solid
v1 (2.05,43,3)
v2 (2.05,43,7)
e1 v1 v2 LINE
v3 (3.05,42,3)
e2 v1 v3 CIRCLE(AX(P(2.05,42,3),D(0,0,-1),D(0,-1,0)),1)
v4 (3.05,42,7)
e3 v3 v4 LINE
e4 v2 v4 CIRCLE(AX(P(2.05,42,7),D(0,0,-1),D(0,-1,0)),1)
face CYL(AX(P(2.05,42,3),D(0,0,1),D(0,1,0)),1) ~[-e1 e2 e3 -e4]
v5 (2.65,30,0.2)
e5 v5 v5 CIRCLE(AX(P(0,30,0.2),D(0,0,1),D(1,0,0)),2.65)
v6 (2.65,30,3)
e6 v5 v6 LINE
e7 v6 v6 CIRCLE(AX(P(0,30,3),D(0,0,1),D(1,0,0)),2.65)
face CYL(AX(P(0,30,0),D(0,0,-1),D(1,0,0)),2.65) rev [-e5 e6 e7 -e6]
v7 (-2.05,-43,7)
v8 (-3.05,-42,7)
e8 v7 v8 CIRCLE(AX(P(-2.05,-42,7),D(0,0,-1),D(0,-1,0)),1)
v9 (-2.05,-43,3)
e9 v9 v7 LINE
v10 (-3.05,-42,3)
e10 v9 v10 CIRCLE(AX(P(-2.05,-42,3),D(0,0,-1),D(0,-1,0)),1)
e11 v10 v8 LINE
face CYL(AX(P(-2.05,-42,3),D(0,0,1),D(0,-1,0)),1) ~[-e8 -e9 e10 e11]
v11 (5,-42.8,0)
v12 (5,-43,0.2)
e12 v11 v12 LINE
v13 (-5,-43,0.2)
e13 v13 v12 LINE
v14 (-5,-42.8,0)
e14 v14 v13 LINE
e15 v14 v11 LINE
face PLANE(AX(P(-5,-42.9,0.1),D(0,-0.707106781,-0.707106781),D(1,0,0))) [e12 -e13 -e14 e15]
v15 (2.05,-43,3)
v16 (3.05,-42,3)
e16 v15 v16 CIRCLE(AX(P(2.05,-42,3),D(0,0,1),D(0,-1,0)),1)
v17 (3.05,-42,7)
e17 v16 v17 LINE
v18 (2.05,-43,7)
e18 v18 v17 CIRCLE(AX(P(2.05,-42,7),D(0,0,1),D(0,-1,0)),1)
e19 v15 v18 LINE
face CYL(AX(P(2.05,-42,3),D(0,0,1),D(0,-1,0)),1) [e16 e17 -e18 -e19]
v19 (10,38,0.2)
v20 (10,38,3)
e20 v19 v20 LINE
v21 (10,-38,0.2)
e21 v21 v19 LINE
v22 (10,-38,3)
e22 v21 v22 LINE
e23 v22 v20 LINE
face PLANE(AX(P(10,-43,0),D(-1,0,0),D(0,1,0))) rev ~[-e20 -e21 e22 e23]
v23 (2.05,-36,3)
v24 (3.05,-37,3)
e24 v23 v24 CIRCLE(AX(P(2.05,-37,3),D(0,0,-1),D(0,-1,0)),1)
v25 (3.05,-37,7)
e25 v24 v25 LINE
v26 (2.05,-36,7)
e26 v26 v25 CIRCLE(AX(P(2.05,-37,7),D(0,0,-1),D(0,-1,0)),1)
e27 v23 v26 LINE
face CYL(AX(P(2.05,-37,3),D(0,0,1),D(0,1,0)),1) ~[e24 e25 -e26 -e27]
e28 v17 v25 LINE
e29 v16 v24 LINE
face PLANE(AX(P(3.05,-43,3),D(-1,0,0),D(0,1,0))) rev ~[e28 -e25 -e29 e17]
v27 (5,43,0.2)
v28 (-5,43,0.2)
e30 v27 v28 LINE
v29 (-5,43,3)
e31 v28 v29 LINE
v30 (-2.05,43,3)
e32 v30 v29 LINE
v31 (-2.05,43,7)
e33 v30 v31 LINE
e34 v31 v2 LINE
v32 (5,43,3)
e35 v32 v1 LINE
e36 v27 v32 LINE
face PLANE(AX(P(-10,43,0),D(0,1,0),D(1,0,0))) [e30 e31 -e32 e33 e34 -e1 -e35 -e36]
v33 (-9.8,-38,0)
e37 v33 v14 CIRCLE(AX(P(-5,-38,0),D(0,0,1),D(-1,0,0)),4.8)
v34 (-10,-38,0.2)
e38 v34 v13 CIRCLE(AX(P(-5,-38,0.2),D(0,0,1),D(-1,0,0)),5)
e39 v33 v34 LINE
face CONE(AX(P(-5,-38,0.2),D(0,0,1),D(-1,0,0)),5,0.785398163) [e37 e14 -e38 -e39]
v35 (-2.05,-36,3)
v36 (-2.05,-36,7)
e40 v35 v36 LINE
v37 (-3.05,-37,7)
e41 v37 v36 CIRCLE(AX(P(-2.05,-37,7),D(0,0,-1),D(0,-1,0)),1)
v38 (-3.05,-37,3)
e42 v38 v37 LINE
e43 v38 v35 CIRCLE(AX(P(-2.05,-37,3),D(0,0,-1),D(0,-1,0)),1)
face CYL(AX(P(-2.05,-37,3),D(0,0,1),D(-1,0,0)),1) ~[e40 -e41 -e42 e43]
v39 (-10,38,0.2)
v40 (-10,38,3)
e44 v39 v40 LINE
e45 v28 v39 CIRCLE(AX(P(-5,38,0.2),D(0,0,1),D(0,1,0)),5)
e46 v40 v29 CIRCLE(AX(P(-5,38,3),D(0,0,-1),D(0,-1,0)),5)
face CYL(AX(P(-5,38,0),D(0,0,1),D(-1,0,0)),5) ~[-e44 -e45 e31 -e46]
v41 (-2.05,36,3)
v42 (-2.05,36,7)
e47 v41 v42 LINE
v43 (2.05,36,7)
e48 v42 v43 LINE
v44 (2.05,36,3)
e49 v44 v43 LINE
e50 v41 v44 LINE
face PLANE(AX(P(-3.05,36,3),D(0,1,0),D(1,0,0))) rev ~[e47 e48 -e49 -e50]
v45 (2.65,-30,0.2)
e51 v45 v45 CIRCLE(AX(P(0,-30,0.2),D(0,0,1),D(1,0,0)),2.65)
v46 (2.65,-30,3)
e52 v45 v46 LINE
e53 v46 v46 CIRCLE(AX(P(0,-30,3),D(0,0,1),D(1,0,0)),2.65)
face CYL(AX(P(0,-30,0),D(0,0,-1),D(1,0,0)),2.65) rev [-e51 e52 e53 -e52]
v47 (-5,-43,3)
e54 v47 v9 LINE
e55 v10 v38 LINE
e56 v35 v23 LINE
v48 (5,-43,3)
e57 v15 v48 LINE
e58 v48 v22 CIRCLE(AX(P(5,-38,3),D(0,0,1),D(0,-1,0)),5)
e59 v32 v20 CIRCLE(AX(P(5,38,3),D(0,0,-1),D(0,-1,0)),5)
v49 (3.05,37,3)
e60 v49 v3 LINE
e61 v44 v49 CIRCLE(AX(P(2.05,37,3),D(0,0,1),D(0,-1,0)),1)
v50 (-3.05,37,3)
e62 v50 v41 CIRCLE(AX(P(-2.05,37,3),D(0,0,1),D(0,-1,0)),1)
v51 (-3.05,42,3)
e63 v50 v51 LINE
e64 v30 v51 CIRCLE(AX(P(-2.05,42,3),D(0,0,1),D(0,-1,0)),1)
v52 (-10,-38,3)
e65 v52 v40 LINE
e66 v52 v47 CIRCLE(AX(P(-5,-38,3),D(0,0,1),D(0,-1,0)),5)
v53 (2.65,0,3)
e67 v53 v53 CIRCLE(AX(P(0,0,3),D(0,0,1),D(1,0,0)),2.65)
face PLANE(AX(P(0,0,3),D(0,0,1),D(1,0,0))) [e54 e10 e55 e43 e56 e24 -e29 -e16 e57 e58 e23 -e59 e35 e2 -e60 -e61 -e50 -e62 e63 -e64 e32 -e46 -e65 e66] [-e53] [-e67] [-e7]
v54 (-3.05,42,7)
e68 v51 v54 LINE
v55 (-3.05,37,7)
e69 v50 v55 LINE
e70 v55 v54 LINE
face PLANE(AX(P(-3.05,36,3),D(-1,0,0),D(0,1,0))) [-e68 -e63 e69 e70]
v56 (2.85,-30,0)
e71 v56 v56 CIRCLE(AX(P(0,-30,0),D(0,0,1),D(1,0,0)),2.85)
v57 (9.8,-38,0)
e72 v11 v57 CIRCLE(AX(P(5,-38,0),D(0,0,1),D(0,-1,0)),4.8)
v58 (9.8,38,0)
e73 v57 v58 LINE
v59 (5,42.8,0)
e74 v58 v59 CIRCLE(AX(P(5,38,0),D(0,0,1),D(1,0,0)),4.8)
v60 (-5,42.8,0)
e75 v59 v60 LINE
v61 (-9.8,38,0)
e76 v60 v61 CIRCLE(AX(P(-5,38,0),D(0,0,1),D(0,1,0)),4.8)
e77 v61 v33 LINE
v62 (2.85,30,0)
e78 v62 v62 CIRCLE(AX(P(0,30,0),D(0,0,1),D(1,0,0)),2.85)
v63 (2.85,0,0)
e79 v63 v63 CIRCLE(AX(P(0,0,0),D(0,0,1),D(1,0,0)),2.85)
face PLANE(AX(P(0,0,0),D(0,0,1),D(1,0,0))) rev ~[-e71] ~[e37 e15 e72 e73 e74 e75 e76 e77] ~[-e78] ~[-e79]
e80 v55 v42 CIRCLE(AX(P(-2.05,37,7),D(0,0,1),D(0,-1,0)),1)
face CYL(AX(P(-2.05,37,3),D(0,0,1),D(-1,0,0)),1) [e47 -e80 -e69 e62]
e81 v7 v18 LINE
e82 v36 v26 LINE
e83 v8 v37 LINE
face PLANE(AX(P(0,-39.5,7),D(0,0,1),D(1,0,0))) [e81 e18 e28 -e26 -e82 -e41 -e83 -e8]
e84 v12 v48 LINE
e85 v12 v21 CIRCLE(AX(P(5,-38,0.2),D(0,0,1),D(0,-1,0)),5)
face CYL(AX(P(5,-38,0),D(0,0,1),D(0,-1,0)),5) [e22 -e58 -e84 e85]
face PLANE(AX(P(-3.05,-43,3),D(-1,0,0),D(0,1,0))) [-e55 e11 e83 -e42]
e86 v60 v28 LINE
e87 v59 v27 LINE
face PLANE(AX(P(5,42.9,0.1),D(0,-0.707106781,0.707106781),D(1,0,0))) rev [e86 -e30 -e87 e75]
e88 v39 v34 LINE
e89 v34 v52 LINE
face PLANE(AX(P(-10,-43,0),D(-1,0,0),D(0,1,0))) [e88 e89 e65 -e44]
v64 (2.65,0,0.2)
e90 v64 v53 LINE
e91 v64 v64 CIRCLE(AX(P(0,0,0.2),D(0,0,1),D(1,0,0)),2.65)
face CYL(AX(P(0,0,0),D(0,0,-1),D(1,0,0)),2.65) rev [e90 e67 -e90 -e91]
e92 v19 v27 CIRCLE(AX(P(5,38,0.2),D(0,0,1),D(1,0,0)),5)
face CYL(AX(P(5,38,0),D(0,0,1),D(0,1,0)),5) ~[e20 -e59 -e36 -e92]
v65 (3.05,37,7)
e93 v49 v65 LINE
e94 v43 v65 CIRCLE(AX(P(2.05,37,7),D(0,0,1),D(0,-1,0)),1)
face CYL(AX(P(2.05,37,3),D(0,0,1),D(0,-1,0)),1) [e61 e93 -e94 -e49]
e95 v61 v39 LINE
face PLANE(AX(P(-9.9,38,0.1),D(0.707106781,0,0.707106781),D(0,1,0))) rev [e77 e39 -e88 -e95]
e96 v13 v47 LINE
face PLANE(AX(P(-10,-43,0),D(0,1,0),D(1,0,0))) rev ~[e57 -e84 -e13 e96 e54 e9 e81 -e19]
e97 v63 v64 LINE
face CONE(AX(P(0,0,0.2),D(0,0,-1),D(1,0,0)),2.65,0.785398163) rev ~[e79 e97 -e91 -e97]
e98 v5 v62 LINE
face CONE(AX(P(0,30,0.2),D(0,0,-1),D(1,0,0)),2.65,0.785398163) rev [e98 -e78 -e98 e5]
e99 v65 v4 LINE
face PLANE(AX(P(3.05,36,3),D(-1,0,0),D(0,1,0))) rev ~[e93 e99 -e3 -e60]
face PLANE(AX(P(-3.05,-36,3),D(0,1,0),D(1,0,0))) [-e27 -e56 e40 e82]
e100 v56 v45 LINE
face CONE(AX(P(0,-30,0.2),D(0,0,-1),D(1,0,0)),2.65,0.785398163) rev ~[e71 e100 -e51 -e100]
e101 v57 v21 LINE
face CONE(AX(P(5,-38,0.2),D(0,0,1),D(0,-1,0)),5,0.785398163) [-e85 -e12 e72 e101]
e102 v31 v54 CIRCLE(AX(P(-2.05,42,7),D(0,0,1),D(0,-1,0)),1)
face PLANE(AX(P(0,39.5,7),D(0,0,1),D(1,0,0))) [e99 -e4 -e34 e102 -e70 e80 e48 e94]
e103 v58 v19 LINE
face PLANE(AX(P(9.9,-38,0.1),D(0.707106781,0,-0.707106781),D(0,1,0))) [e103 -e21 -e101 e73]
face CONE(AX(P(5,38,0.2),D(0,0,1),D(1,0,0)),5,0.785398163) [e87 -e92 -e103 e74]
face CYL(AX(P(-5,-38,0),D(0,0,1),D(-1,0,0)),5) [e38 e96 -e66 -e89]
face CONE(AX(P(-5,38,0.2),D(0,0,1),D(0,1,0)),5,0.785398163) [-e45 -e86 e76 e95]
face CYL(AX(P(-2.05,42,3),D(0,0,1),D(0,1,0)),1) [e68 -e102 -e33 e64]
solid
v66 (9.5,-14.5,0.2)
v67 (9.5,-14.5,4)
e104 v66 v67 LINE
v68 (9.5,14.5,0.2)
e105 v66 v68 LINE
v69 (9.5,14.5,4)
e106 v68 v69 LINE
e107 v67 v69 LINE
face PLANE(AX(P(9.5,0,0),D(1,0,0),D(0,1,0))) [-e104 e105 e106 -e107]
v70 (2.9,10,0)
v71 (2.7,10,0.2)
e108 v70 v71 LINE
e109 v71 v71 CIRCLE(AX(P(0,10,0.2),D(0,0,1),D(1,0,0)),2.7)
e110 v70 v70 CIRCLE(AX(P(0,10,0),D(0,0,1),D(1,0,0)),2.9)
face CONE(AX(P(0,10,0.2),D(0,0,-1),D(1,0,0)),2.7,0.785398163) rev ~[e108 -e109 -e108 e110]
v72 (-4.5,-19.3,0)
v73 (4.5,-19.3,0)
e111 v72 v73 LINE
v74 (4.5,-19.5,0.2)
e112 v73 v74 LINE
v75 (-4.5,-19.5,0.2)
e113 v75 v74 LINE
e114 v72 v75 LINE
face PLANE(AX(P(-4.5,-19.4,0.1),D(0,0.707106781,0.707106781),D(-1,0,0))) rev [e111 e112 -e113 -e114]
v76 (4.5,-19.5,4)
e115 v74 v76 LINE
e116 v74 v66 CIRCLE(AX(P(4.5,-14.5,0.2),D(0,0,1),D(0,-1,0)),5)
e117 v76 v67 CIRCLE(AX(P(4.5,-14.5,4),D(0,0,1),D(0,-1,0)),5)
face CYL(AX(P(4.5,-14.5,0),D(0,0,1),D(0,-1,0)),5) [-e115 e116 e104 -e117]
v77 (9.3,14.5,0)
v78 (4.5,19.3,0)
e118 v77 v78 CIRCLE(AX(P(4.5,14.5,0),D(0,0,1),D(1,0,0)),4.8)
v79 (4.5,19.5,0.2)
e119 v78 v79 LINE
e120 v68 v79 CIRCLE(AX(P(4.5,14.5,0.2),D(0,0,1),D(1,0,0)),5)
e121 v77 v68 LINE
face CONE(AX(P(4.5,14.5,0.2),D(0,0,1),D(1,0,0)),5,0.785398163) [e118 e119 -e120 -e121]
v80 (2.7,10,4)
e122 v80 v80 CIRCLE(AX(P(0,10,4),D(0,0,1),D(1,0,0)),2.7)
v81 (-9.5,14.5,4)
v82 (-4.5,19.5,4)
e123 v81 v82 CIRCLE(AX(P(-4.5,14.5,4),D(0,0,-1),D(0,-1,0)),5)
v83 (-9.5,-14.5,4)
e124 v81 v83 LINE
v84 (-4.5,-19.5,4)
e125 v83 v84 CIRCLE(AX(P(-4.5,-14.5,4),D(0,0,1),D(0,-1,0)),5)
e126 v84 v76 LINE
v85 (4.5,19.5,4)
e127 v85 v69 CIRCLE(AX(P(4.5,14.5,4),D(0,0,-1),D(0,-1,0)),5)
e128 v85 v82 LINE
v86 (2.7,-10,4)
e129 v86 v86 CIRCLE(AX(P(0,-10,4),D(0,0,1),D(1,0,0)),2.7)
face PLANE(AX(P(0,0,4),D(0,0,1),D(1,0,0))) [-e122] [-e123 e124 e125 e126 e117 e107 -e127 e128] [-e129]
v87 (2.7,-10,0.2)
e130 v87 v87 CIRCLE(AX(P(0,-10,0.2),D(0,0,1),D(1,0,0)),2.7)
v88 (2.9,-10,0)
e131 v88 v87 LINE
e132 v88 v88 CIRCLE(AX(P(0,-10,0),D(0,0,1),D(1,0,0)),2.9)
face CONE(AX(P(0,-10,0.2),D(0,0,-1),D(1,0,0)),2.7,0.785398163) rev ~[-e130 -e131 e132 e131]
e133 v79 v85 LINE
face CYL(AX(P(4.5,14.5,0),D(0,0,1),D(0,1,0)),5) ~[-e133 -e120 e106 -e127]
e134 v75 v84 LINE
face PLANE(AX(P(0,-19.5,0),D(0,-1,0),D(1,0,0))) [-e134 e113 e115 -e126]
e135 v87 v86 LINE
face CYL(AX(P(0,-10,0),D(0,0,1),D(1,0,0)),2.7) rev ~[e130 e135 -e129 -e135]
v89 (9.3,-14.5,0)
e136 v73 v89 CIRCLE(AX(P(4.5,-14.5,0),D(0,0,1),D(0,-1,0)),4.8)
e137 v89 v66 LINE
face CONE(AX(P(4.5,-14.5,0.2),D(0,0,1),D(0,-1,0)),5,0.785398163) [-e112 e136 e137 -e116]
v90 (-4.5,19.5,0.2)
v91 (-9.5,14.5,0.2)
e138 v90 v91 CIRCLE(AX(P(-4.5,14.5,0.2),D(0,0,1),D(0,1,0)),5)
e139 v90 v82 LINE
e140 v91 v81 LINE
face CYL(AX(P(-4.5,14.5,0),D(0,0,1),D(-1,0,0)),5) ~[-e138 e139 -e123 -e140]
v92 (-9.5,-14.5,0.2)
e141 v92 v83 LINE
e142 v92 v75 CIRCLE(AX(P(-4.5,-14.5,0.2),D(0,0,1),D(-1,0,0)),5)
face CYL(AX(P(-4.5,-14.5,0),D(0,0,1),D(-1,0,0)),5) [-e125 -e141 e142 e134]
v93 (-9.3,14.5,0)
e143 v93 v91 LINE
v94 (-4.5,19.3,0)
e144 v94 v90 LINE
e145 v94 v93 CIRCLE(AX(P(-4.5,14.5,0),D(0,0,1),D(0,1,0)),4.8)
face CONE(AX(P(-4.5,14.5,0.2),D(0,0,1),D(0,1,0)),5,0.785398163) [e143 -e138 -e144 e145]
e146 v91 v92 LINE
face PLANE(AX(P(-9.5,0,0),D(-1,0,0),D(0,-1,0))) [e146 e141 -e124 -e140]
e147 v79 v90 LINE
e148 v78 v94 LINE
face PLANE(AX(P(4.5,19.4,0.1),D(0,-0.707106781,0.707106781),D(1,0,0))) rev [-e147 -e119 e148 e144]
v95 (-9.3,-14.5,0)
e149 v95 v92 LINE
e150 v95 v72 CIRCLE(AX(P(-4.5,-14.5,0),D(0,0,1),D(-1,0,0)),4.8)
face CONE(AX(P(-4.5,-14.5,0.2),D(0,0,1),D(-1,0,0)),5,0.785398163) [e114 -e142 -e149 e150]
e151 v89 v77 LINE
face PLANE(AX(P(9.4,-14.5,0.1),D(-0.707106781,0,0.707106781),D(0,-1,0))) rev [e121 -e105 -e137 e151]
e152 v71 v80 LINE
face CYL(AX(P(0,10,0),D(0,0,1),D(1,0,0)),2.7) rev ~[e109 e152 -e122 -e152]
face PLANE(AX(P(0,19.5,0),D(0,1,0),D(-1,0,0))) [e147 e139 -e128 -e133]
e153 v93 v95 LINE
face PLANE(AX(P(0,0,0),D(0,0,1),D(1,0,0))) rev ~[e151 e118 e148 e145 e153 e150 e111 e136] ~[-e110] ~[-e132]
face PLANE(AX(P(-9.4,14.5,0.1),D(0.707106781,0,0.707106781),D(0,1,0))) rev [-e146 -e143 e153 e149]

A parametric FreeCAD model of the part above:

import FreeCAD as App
import Part
import Sketcher

V = App.Vector


def edges_at(feature, points):
    """Names of the edges that pass closest to the given points."""
    edges = feature.Shape.Edges
    near = lambda p: min(range(len(edges)), key=lambda i: edges[i].distToShape(Part.Vertex(*p))[0])
    return sorted({f"Edge{near(p) + 1}" for p in points})


def add_polygon(sketch, points):
    """Adds a closed chain of lines whose ends are joined by coincident constraints."""
    first, n = sketch.GeometryCount, len(points)
    for a, b in zip(points, points[1:] + points[:1]):
        sketch.addGeometry(Part.LineSegment(App.Vector(*a, 0), App.Vector(*b, 0)), False)
    for i in range(n):
        sketch.addConstraint(Sketcher.Constraint("Coincident", first + i, 2, first + (i + 1) % n, 1))

doc = App.newDocument("Part")
body = doc.addObject("PartDesign::Body", "Body")

sketch1 = body.newObject("Sketcher::SketchObject", "Sketch")
sketch1.AttachmentSupport = (doc.getObject("XY_Plane"), [""])
sketch1.MapMode = "FlatFace"
add_polygon(sketch1, [(-9.5, 19.5), (-9.5, -19.5), (9.5, -19.5), (9.5, 19.5)])
sketch1.addGeometry(Part.Circle(V(0, -10, 0), V(0, 0, 1), 2.7), False)
sketch1.addGeometry(Part.Circle(V(0, 10, 0), V(0, 0, 1), 2.7), False)
sketch1.addConstraint(Sketcher.Constraint("Vertical", 0))
sketch1.addConstraint(Sketcher.Constraint("Horizontal", 1))
sketch1.addConstraint(Sketcher.Constraint("Vertical", 2))
sketch1.addConstraint(Sketcher.Constraint("Horizontal", 3))
sketch1.addConstraint(Sketcher.Constraint("Equal", 4, 5))
sketch1.addConstraint(Sketcher.Constraint("Symmetric", 4, 3, 5, 3, -1, 1))
sketch1.addConstraint(Sketcher.Constraint("Symmetric", 0, 2, 2, 2, -1, 1))
sketch1.addConstraint(Sketcher.Constraint("PointOnObject", 4, 3, -2))
sketch1.addConstraint(Sketcher.Constraint("Diameter", 4, 5.4))
sketch1.addConstraint(Sketcher.Constraint("DistanceX", 1, 1, 1, 2, 19.0))
sketch1.addConstraint(Sketcher.Constraint("DistanceY", 0, 2, 0, 1, 39.0))
sketch1.addConstraint(Sketcher.Constraint("DistanceY", 4, 3, -1, 1, 10.0))

sketch2 = body.newObject("Sketcher::SketchObject", "Sketch001")
sketch2.AttachmentSupport = (doc.getObject("XZ_Plane"), [""])
sketch2.MapMode = "FlatFace"
sketch2.addGeometry(Part.LineSegment(V(0, 0, 0), V(0, 4, 0)), False)
sketch2.addConstraint(Sketcher.Constraint("Vertical", 0))
sketch2.addConstraint(Sketcher.Constraint("Coincident", 0, 1, -1, 1))
sketch2.addConstraint(Sketcher.Constraint("DistanceY", 0, 1, 0, 2, 4.0))
doc.recompute()

additivepipe = body.newObject("PartDesign::AdditivePipe", "AdditivePipe")
additivepipe.Profile = sketch1
additivepipe.Spine = (sketch2, ["Edge1"])
doc.recompute()

fillet = body.newObject("PartDesign::Fillet", "Fillet")
fillet.Base = (additivepipe, edges_at(additivepipe, [
    (-9.5, -19.5, 2),
    (9.5, -19.5, 2),
    (-9.5, 19.5, 2),
    (9.5, 19.5, 2),
]))
fillet.Radius = 5
doc.recompute()

chamfer = body.newObject("PartDesign::Chamfer", "Chamfer")
chamfer.Base = (fillet, edges_at(fillet, [
    (9.5, 0, 0),
    (8.036, -18.036, 0),
    (8.036, 18.036, 0),
    (0, -19.5, 0),
    (0, 19.5, 0),
    (-8.036, -18.036, 0),
    (-8.036, 18.036, 0),
    (-9.5, 0, 0),
    (-2.7, -10, 0),
    (-2.7, 10, 0),
]))
chamfer.Size = 0.2
body2 = doc.addObject("PartDesign::Body", "Body001")

sketch3 = body2.newObject("Sketcher::SketchObject", "Sketch002")
sketch3.AttachmentSupport = (doc.getObject("XY_Plane001"), [""])
sketch3.MapMode = "FlatFace"
add_polygon(sketch3, [(-10, 43), (-10, -43), (10, -43), (10, 43)])
sketch3.addGeometry(Part.Circle(V(0, -30, 0), V(0, 0, 1), 2.65), False)
sketch3.addGeometry(Part.Circle(V(0, 0, 0), V(0, 0, 1), 2.65), False)
sketch3.addGeometry(Part.Circle(V(0, 30, 0), V(0, 0, 1), 2.65), False)
sketch3.addConstraint(Sketcher.Constraint("Vertical", 0))
sketch3.addConstraint(Sketcher.Constraint("Horizontal", 1))
sketch3.addConstraint(Sketcher.Constraint("Vertical", 2))
sketch3.addConstraint(Sketcher.Constraint("Horizontal", 3))
sketch3.addConstraint(Sketcher.Constraint("Coincident", 5, 3, -1, 1))
sketch3.addConstraint(Sketcher.Constraint("Equal", 4, 5))
sketch3.addConstraint(Sketcher.Constraint("Equal", 5, 6))
sketch3.addConstraint(Sketcher.Constraint("Symmetric", 4, 3, 6, 3, -1, 1))
sketch3.addConstraint(Sketcher.Constraint("Symmetric", 0, 2, 2, 2, -1, 1))
sketch3.addConstraint(Sketcher.Constraint("PointOnObject", 4, 3, -2))
sketch3.addConstraint(Sketcher.Constraint("Diameter", 4, 5.3))
sketch3.addConstraint(Sketcher.Constraint("DistanceX", 1, 1, 1, 2, 20.0))
sketch3.addConstraint(Sketcher.Constraint("DistanceY", 0, 2, 0, 1, 86.0))
sketch3.addConstraint(Sketcher.Constraint("DistanceY", 4, 3, -1, 1, 30.0))
pad1 = body2.newObject("PartDesign::Pad", "Pad")
pad1.Profile = sketch3
pad1.Length = 3

sketch4 = body2.newObject("Sketcher::SketchObject", "Sketch003")
sketch4.AttachmentSupport = (doc.getObject("XY_Plane001"), [""])
sketch4.MapMode = "FlatFace"
sketch4.AttachmentOffset = App.Placement(V(0, 0, 3), App.Rotation())
add_polygon(sketch4, [(-3.05, 43), (-3.05, 36), (3.05, 36), (3.05, 43)])
add_polygon(sketch4, [(-3.05, -36), (-3.05, -43), (3.05, -43), (3.05, -36)])
sketch4.addConstraint(Sketcher.Constraint("Vertical", 0))
sketch4.addConstraint(Sketcher.Constraint("Horizontal", 1))
sketch4.addConstraint(Sketcher.Constraint("Vertical", 2))
sketch4.addConstraint(Sketcher.Constraint("Horizontal", 3))
sketch4.addConstraint(Sketcher.Constraint("Vertical", 4))
sketch4.addConstraint(Sketcher.Constraint("Horizontal", 5))
sketch4.addConstraint(Sketcher.Constraint("Vertical", 6))
sketch4.addConstraint(Sketcher.Constraint("Horizontal", 7))
sketch4.addConstraint(Sketcher.Constraint("Symmetric", 2, 2, 4, 2, -1, 1))
sketch4.addConstraint(Sketcher.Constraint("Symmetric", 0, 2, 6, 2, -1, 1))
sketch4.addConstraint(Sketcher.Constraint("Vertical", 3, 2, 4, 2))
sketch4.addConstraint(Sketcher.Constraint("DistanceY", 0, 2, 0, 1, 7.0))
sketch4.addConstraint(Sketcher.Constraint("DistanceX", 1, 1, 1, 2, 6.1))
sketch4.addConstraint(Sketcher.Constraint("DistanceY", -1, 1, 0, 2, 36.0))
pad2 = body2.newObject("PartDesign::Pad", "Pad001")
pad2.Profile = sketch4
pad2.Length = 4
doc.recompute()

fillet2 = body2.newObject("PartDesign::Fillet", "Fillet001")
fillet2.Base = (pad2, edges_at(pad2, [
    (-10, -43, 1.5),
    (10, -43, 1.5),
    (-10, 43, 1.5),
    (10, 43, 1.5),
]))
fillet2.Radius = 5
doc.recompute()

fillet3 = body2.newObject("PartDesign::Fillet", "Fillet002")
fillet3.Base = (fillet2, edges_at(fillet2, [
    (-3.05, -43, 5),
    (3.05, -43, 5),
    (-3.05, -36, 5),
    (3.05, -36, 5),
    (3.05, 43, 5),
    (3.05, 36, 5),
    (-3.05, 36, 5),
    (-3.05, 43, 5),
]))
fillet3.Radius = 1
doc.recompute()

chamfer2 = body2.newObject("PartDesign::Chamfer", "Chamfer001")
chamfer2.Base = (fillet3, edges_at(fillet3, [
    (10, 0, 0),
    (8.536, -41.536, 0),
    (8.536, 41.536, 0),
    (0, -43, 0),
    (0, 43, 0),
    (-8.536, -41.536, 0),
    (-8.536, 41.536, 0),
    (-10, 0, 0),
    (-2.65, -30, 0),
    (-2.65, 0, 0),
    (-2.65, 30, 0),
]))
chamfer2.Size = 0.2

doc.recompute()
